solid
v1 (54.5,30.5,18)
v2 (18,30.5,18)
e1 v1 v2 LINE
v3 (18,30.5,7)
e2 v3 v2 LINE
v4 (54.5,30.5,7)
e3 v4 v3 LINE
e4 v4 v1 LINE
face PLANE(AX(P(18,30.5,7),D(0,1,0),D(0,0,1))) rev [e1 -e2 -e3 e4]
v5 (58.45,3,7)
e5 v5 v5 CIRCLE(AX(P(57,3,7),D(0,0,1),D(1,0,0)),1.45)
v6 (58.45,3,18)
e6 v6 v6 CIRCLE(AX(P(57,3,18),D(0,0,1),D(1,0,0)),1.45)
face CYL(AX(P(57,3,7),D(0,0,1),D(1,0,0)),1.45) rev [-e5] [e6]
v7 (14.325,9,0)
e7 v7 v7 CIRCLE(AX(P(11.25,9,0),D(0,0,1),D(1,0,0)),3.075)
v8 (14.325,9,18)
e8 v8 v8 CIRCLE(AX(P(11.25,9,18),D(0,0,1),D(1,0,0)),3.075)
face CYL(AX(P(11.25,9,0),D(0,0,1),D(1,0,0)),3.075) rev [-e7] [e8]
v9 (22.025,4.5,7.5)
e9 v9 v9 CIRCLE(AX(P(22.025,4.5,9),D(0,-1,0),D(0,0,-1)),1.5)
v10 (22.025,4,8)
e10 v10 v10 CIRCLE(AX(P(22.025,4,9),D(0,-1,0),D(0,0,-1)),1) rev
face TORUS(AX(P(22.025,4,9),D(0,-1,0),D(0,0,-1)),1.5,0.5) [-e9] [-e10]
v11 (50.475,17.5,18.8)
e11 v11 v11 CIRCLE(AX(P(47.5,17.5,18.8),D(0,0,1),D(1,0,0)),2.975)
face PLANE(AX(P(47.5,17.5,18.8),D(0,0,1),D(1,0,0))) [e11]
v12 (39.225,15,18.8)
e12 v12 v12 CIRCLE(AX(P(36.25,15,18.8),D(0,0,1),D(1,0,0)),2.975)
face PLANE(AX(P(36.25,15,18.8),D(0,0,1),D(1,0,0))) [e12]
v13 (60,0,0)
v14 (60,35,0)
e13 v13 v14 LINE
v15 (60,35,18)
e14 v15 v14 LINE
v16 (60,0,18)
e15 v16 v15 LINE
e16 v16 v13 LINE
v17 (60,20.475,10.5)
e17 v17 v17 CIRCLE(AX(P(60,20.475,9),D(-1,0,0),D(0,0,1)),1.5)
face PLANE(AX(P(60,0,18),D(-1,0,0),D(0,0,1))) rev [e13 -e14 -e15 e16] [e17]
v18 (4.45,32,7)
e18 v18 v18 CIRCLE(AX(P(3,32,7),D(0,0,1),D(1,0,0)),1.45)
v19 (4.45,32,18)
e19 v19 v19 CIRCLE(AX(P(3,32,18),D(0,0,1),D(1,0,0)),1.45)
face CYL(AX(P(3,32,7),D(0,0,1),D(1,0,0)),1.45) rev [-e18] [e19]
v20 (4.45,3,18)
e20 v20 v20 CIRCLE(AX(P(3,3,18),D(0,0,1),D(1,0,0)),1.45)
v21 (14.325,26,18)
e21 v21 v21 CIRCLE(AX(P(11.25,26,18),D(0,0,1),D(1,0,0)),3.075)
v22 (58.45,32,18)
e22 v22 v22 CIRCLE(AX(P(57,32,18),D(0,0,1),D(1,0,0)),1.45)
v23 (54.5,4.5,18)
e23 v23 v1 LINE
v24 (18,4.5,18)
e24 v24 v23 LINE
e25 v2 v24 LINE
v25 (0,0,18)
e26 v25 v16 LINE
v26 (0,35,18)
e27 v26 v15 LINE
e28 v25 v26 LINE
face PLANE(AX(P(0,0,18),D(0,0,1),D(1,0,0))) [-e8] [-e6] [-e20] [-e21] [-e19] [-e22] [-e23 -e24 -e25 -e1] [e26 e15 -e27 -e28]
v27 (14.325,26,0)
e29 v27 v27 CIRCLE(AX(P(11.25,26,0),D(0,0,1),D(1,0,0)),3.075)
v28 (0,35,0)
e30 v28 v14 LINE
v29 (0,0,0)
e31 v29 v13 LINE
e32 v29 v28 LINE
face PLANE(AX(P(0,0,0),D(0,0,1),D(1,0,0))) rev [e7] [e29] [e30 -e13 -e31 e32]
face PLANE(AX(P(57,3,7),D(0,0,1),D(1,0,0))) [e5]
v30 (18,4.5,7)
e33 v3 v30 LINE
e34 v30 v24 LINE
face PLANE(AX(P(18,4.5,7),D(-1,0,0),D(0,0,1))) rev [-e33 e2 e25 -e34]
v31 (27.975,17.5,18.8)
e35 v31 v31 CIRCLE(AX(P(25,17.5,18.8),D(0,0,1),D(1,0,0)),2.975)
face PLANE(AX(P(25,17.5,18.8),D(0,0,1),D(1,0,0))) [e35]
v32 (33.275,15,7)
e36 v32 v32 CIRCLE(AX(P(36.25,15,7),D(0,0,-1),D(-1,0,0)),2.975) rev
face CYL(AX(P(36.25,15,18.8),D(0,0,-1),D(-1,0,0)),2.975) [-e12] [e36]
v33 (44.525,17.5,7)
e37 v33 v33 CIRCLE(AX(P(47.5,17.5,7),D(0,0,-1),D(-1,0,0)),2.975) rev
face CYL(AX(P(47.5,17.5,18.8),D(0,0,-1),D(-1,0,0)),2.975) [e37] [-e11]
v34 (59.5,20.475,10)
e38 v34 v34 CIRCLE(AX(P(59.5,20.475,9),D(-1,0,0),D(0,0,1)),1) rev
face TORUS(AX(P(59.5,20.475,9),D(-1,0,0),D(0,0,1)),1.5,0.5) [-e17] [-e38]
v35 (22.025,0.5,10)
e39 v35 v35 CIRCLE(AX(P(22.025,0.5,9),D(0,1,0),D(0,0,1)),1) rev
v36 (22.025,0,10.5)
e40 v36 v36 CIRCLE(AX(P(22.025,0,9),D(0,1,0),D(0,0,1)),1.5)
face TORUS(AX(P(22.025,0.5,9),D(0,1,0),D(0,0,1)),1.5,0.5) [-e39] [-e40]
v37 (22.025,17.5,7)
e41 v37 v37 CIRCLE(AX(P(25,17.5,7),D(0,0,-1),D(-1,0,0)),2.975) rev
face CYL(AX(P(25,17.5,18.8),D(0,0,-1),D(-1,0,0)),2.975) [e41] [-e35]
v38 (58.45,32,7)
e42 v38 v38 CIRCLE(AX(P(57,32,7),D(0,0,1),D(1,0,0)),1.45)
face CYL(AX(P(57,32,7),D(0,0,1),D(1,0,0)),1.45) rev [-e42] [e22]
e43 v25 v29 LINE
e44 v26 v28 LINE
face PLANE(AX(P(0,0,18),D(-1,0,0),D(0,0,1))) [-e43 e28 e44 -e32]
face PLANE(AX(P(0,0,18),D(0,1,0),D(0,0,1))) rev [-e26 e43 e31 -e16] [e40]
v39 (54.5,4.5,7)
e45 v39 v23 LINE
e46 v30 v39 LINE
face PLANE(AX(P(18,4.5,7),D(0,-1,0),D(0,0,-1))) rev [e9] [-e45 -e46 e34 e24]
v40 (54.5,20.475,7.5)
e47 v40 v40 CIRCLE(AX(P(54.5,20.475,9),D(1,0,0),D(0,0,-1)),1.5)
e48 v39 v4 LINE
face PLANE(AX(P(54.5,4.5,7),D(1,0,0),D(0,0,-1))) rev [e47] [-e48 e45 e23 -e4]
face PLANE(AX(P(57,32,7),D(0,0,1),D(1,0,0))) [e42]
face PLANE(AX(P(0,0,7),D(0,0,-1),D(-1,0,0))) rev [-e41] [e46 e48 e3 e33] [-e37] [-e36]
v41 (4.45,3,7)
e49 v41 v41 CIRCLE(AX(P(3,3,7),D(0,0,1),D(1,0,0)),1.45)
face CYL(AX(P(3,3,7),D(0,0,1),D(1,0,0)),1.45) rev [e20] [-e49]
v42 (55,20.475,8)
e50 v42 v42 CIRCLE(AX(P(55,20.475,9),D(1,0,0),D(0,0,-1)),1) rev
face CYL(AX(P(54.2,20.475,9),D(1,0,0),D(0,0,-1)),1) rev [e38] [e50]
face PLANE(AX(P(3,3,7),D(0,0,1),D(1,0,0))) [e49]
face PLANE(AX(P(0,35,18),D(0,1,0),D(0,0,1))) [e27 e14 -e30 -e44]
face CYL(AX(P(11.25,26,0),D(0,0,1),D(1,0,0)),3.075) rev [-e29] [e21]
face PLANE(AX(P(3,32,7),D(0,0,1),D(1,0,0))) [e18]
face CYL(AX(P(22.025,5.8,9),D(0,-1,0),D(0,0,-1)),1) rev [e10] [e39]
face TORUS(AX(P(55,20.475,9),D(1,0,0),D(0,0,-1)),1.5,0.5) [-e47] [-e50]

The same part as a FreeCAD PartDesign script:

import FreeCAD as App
import Part
import Sketcher
from FreeCAD import Vector
Q = App.Units.Quantity


def edges_at(feature, points):
    """Names of the edges that pass closest to the given points."""
    edges = feature.Shape.Edges
    near = lambda p: min(range(len(edges)), key=lambda i: edges[i].distToShape(Part.Vertex(*p))[0])
    return sorted({f"Edge{near(p) + 1}" for p in points})


def add_polygon(sketch, points):
    """Adds a closed chain of lines whose ends are joined by coincident constraints."""
    first, n = sketch.GeometryCount, len(points)
    for a, b in zip(points, points[1:] + points[:1]):
        sketch.addGeometry(Part.LineSegment(App.Vector(*a, 0), App.Vector(*b, 0)), False)
    for i in range(n):
        sketch.addConstraint(Sketcher.Constraint("Coincident", first + i, 2, first + (i + 1) % n, 1))

doc = App.newDocument("Part")
body = doc.addObject("PartDesign::Body", "Body")

# Sketch on XY plane
sketch1 = doc.addObject("Sketcher::SketchObject", "Sketch")
body.addObject(sketch1)
sketch1.AttachmentSupport = (doc.XY_Plane, [""])
sketch1.MapMode = "FlatFace"
add_polygon(sketch1, [(0, 35), (0, 0), (60, 0), (60, 35)])  # lines 0-3
sketch1.addConstraint(Sketcher.Constraint("Vertical", 0))
sketch1.addConstraint(Sketcher.Constraint("Horizontal", 1))
sketch1.addConstraint(Sketcher.Constraint("Vertical", 2))
sketch1.addConstraint(Sketcher.Constraint("Horizontal", 3))
sketch1.addConstraint(Sketcher.Constraint("Coincident", 0, 2, -1, 1))
sketch1.addConstraint(Sketcher.Constraint("DistanceX", 1, 1, 1, 2, Q("60 mm")))
sketch1.addConstraint(Sketcher.Constraint("DistanceY", 0, 2, 0, 1, Q("35 mm")))
pad1 = doc.addObject("PartDesign::Pad", "Pad")
body.addObject(pad1)
pad1.Profile = sketch1
pad1.Length = 18

# Sketch on XY plane
sketch2 = doc.addObject("Sketcher::SketchObject", "Sketch001")
body.addObject(sketch2)
sketch2.AttachmentSupport = (doc.XY_Plane, [""])
sketch2.MapMode = "FlatFace"
sketch2.AttachmentOffset = App.Placement(Vector(0, 0, 18), App.Rotation())
sketch2.addGeometry(Part.Circle(Vector(11.2, 26, 0), Vector(0, 0, 1), 3.1), False)
sketch2.addGeometry(Part.Circle(Vector(11.2, 9, 0), Vector(0, 0, 1), 3.1), False)
sketch2.addConstraint(Sketcher.Constraint("Equal", 0, 1))
sketch2.addConstraint(Sketcher.Constraint("Vertical", 0, 3, 1, 3))
sketch2.addConstraint(Sketcher.Constraint("Diameter", 0, Q("6.15 mm")))
sketch2.addConstraint(Sketcher.Constraint("DistanceY", -1, 1, 0, 3, Q("26 mm")))
sketch2.addConstraint(Sketcher.Constraint("DistanceY", -1, 1, 1, 3, Q("9 mm")))
sketch2.addConstraint(Sketcher.Constraint("DistanceX", -1, 1, 0, 3, Q("11.25 mm")))
pocket1 = doc.addObject("PartDesign::Pocket", "Pocket")
body.addObject(pocket1)
pocket1.Profile = sketch2
pocket1.Length = 18

# Sketch on XY plane
sketch3 = doc.addObject("Sketcher::SketchObject", "Sketch002")
body.addObject(sketch3)
sketch3.AttachmentSupport = (doc.XY_Plane, [""])
sketch3.MapMode = "FlatFace"
sketch3.AttachmentOffset = App.Placement(Vector(0, 0, 18), App.Rotation())
sketch3.addGeometry(Part.Circle(Vector(3, 32, 0), Vector(0, 0, 1), 1.4), False)  # 0
sketch3.addGeometry(Part.Circle(Vector(57, 32, 0), Vector(0, 0, 1), 1.4), False)  # 1
sketch3.addGeometry(Part.Circle(Vector(57, 3, 0), Vector(0, 0, 1), 1.4), False)  # 2
sketch3.addGeometry(Part.Circle(Vector(3, 3, 0), Vector(0, 0, 1), 1.4), False)  # 3
add_polygon(sketch3, [(18, 30.5), (18, 4.5), (54.5, 4.5), (54.5, 30.5)])  # lines 4-7
sketch3.addConstraint(Sketcher.Constraint("Vertical", 4))
sketch3.addConstraint(Sketcher.Constraint("Horizontal", 5))
sketch3.addConstraint(Sketcher.Constraint("Vertical", 6))
sketch3.addConstraint(Sketcher.Constraint("Horizontal", 7))
sketch3.addConstraint(Sketcher.Constraint("Equal", 0, 1))
sketch3.addConstraint(Sketcher.Constraint("Equal", 1, 2))
sketch3.addConstraint(Sketcher.Constraint("Equal", 2, 3))
sketch3.addConstraint(Sketcher.Constraint("Horizontal", 0, 3, 1, 3))
sketch3.addConstraint(Sketcher.Constraint("Horizontal", 2, 3, 3, 3))
sketch3.addConstraint(Sketcher.Constraint("Vertical", 1, 3, 2, 3))
sketch3.addConstraint(Sketcher.Constraint("Vertical", 0, 3, 3, 3))
sketch3.addConstraint(Sketcher.Constraint("Diameter", 0, Q("2.9 mm")))
sketch3.addConstraint(Sketcher.Constraint("DistanceY", 4, 2, 4, 1, Q("26 mm")))
sketch3.addConstraint(Sketcher.Constraint("DistanceX", 5, 1, 5, 2, Q("36.5 mm")))
sketch3.addConstraint(Sketcher.Constraint("DistanceX", -1, 1, 0, 3, Q("3 mm")))
sketch3.addConstraint(Sketcher.Constraint("DistanceY", -1, 1, 0, 3, Q("32 mm")))
sketch3.addConstraint(Sketcher.Constraint("DistanceX", -1, 1, 1, 3, Q("57 mm")))
sketch3.addConstraint(Sketcher.Constraint("DistanceY", -1, 1, 2, 3, Q("3 mm")))
sketch3.addConstraint(Sketcher.Constraint("DistanceX", -1, 1, 4, 2, Q("18 mm")))
sketch3.addConstraint(Sketcher.Constraint("DistanceY", -1, 1, 4, 2, Q("4.5 mm")))
pocket2 = doc.addObject("PartDesign::Pocket", "Pocket001")
body.addObject(pocket2)
pocket2.Profile = sketch3
pocket2.Length = 11

# Sketch on XY plane
sketch4 = doc.addObject("Sketcher::SketchObject", "Sketch003")
body.addObject(sketch4)
sketch4.AttachmentSupport = (doc.XY_Plane, [""])
sketch4.MapMode = "FlatFace"
sketch4.AttachmentOffset = App.Placement(Vector(0, 0, 7), App.Rotation())
sketch4.addGeometry(Part.Circle(Vector(25, 17.5, 0), Vector(0, 0, 1), 3), False)
sketch4.addGeometry(Part.Circle(Vector(36.2, 15, 0), Vector(0, 0, 1), 3), False)
sketch4.addGeometry(Part.Circle(Vector(47.5, 17.5, 0), Vector(0, 0, 1), 3), False)
sketch4.addConstraint(Sketcher.Constraint("Equal", 0, 1))
sketch4.addConstraint(Sketcher.Constraint("Equal", 1, 2))
sketch4.addConstraint(Sketcher.Constraint("Horizontal", 0, 3, 2, 3))
sketch4.addConstraint(Sketcher.Constraint("Diameter", 0, Q("5.95 mm")))
sketch4.addConstraint(Sketcher.Constraint("DistanceX", -1, 1, 0, 3, Q("25 mm")))
sketch4.addConstraint(Sketcher.Constraint("DistanceY", -1, 1, 1, 3, Q("15 mm")))
sketch4.addConstraint(Sketcher.Constraint("DistanceY", -1, 1, 0, 3, Q("17.5 mm")))
sketch4.addConstraint(Sketcher.Constraint("DistanceX", -1, 1, 2, 3, Q("47.5 mm")))
sketch4.addConstraint(Sketcher.Constraint("DistanceX", -1, 1, 1, 3, Q("36.25 mm")))
pad2 = doc.addObject("PartDesign::Pad", "Pad001")
body.addObject(pad2)
pad2.Profile = sketch4
pad2.Length = 11.8

# Sketch on YZ plane
sketch5 = doc.addObject("Sketcher::SketchObject", "Sketch004")
body.addObject(sketch5)
sketch5.AttachmentSupport = (doc.YZ_Plane, [""])
sketch5.MapMode = "FlatFace"
sketch5.AttachmentOffset = App.Placement(Vector(0, 0, 60), App.Rotation())
sketch5.addGeometry(Part.Circle(Vector(20.5, 9, 0), Vector(0, 0, 1), 1), False)
sketch5.addConstraint(Sketcher.Constraint("Diameter", 0, Q("2 mm")))
sketch5.addConstraint(Sketcher.Constraint("DistanceY", -1, 1, 0, 3, Q("9 mm")))
sketch5.addConstraint(Sketcher.Constraint("DistanceX", -1, 1, 0, 3, Q("20.475 mm")))
pocket3 = doc.addObject("PartDesign::Pocket", "Pocket002")
body.addObject(pocket3)
pocket3.Profile = sketch5
pocket3.Length = 5.8

# Sketch on XZ plane
sketch6 = doc.addObject("Sketcher::SketchObject", "Sketch005")
body.addObject(sketch6)
sketch6.AttachmentSupport = (doc.XZ_Plane, [""])
sketch6.MapMode = "FlatFace"
sketch6.addGeometry(Part.Circle(Vector(22, 9, 0), Vector(0, 0, 1), 1), False)
sketch6.addConstraint(Sketcher.Constraint("Diameter", 0, Q("2 mm")))
sketch6.addConstraint(Sketcher.Constraint("DistanceY", -1, 1, 0, 3, Q("9 mm")))
sketch6.addConstraint(Sketcher.Constraint("DistanceX", -1, 1, 0, 3, Q("22.025 mm")))
pocket4 = doc.addObject("PartDesign::Pocket", "Pocket003")
body.addObject(pocket4)
pocket4.Profile = sketch6
pocket4.Length = 5.8
doc.recompute()

fillet = doc.addObject("PartDesign::Fillet", "Fillet")
body.addObject(fillet)
fillet.Base = (pocket4, edges_at(pocket4, [
    (54.5, 20.475, 10),
    (60, 20.475, 10),
    (22.025, 4.5, 10),
    (22.025, 0, 10),
]))
fillet.Radius = 0.5

doc.recompute()
